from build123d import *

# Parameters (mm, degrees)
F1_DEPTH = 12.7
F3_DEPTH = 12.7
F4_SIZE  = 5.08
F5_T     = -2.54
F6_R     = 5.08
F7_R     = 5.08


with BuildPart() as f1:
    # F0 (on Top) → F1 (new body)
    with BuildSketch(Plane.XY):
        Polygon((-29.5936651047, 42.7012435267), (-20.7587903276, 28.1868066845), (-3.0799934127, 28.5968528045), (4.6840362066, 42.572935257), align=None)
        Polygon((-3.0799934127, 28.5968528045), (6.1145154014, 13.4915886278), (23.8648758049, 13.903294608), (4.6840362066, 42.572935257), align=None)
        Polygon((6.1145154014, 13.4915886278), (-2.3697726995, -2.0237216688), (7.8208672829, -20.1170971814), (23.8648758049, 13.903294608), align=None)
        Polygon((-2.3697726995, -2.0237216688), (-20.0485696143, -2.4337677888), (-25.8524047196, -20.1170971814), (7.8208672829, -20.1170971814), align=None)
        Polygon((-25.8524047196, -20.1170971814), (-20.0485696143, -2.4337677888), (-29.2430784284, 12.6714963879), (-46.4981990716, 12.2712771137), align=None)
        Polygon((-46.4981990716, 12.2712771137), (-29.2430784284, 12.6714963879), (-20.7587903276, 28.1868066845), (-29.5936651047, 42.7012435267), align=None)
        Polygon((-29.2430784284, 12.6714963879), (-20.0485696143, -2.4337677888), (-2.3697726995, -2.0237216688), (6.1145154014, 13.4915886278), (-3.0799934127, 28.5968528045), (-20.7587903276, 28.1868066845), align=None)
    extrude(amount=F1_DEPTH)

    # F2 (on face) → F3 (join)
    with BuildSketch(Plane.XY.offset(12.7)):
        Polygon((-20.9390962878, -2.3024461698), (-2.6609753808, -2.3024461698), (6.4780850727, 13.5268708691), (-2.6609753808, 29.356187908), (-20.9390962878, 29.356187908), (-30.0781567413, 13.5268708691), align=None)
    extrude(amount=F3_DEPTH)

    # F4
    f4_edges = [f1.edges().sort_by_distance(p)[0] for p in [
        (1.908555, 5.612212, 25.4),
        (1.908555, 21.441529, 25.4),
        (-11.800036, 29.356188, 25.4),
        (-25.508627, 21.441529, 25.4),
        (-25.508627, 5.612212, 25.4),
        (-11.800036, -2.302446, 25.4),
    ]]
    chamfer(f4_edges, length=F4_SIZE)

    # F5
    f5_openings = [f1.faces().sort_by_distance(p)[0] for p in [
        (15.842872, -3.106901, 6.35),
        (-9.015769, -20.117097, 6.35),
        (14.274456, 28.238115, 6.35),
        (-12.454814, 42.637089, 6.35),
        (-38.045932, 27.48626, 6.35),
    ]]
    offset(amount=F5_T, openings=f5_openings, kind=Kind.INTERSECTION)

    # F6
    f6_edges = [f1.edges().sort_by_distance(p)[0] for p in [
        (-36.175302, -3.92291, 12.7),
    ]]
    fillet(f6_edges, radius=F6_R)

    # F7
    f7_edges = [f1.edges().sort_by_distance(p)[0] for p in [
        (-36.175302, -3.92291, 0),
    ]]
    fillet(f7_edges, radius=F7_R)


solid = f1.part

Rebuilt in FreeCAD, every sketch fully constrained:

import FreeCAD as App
import Part
import Sketcher
Q = App.Units.Quantity


def edges_at(feature, points):
    """Names of the edges that pass closest to the given points."""
    edges = feature.Shape.Edges
    near = lambda p: min(range(len(edges)), key=lambda i: edges[i].distToShape(Part.Vertex(*p))[0])
    return sorted({f"Edge{near(p) + 1}" for p in points})


def faces_at(feature, points):
    """Names of the faces that lie closest to the given points."""
    faces = feature.Shape.Faces
    near = lambda p: min(range(len(faces)), key=lambda i: faces[i].distToShape(Part.Vertex(*p))[0])
    return sorted({f"Face{near(p) + 1}" for p in points})


def add_polygon(sketch, points):
    """Adds a closed chain of lines whose ends are joined by coincident constraints."""
    first, n = sketch.GeometryCount, len(points)
    for a, b in zip(points, points[1:] + points[:1]):
        sketch.addGeometry(Part.LineSegment(App.Vector(*a, 0), App.Vector(*b, 0)), False)
    for i in range(n):
        sketch.addConstraint(Sketcher.Constraint("Coincident", first + i, 2, first + (i + 1) % n, 1))

doc = App.newDocument("Part")
body = doc.addObject("PartDesign::Body", "Body")

sketch1 = body.newObject("Sketcher::SketchObject", "Sketch")
sketch1.AttachmentSupport = (doc.getObject("XY_Plane"), [""])
sketch1.MapMode = "FlatFace"
add_polygon(sketch1, [(-46, 12), (-26, -20), (8, -20), (24, 14), (5, 43), (-30, 43)])
sketch1.addConstraint([
    Sketcher.Constraint("Horizontal", 1),
    Sketcher.Constraint("DistanceY", -1, 1, 3, 2, Q("1.6760998 in")),
    Sketcher.Constraint("DistanceX", 5, 2, -1, 1, Q("46.498199 mm")),
    Sketcher.Constraint("DistanceX", 4, 2, 3, 2, Q("34.277701 mm")),
    Sketcher.Constraint("Distance", 2, Q("37.613791 mm")),
    Sketcher.Constraint("DistanceX", 1, 1, 1, 2, Q("33.673272 mm")),
    Sketcher.Constraint("DistanceX", 1, 2, 2, 2, Q("16.044009 mm")),
    Sketcher.Constraint("DistanceX", 3, 2, 2, 2, Q("19.18084 mm")),
    Sketcher.Constraint("DistanceY", 2, 2, 3, 2, Q("28.669641 mm")),
    Sketcher.Constraint("DistanceY", 3, 2, 4, 2, Q("0.128308 mm")),
    Sketcher.Constraint("DistanceY", 5, 2, 3, 2, Q("30.301658 mm")),
    Sketcher.Constraint("Distance", 0, Q("38.409056 mm")),
])
pad1 = body.newObject("PartDesign::Pad", "Pad")
pad1.Profile = sketch1
pad1.Length = Q("0.5 in")

sketch2 = body.newObject("Sketcher::SketchObject", "Sketch001")
sketch2.AttachmentSupport = (doc.getObject("XY_Plane"), [""])
sketch2.MapMode = "FlatFace"
sketch2.AttachmentOffset = App.Placement(App.Vector(0, 0, 0.5 * 25.4), App.Rotation())
add_polygon(sketch2, [(-21, -2), (-3, -2), (6, 14), (-3, 29), (-21, 29), (-30, 14)])
sketch2.addConstraint([
    Sketcher.Constraint("Horizontal", 0),
    Sketcher.Constraint("Horizontal", 3),
    Sketcher.Constraint("Parallel", 1, 4),
    Sketcher.Constraint("Parallel", 2, 5),
    Sketcher.Constraint("Horizontal", 1, 2, 4, 2),
    Sketcher.Constraint("Vertical", 0, 2, 2, 2),
    Sketcher.Constraint("Vertical", 3, 2, 5, 2),
    Sketcher.Constraint("Angle", 1, Q("60 deg")),
    Sketcher.Constraint("DistanceX", 0, 1, 0, 2, Q("18.278121 mm")),
    Sketcher.Constraint("Distance", 1, Q("18.278121 mm")),
    Sketcher.Constraint("DistanceY", -1, 1, 1, 2, Q("13.526871 mm")),
    Sketcher.Constraint("DistanceX", 0, 2, -1, 1, Q("2.660975 mm")),
])
pad2 = body.newObject("PartDesign::Pad", "Pad001")
pad2.Profile = sketch2
pad2.Length = Q("0.5 in")
doc.recompute()

chamfer = body.newObject("PartDesign::Chamfer", "Chamfer")
chamfer.Base = (pad2, edges_at(pad2, [
    (1.909, 5.612, 25.4),
    (1.909, 21.442, 25.4),
    (-11.8, 29.356, 25.4),
    (-25.509, 21.442, 25.4),
    (-25.509, 5.612, 25.4),
    (-11.8, -2.302, 25.4),
]))
chamfer.Size = Q("0.2 in")
doc.recompute()

thickness = body.newObject("PartDesign::Thickness", "Thickness")
thickness.Base = (chamfer, faces_at(chamfer, [
    (15.843, -3.107, 6.35),
    (-9.016, -20.117, 6.35),
    (14.274, 28.238, 6.35),
    (-12.455, 42.637, 6.35),
    (-38.046, 27.486, 6.35),
]))
thickness.Value = Q("0.1 in")
thickness.Reversed = True
thickness.Join = "Intersection"
doc.recompute()

fillet = body.newObject("PartDesign::Fillet", "Fillet")
fillet.Base = (thickness, edges_at(thickness, [(-36.175, -3.923, 12.7)]))
fillet.Radius = Q("0.2 in")
doc.recompute()

fillet2 = body.newObject("PartDesign::Fillet", "Fillet001")
fillet2.Base = (fillet, edges_at(fillet, [(-36.175, -3.923, 0)]))
fillet2.Radius = Q("0.2 in")

doc.recompute()
